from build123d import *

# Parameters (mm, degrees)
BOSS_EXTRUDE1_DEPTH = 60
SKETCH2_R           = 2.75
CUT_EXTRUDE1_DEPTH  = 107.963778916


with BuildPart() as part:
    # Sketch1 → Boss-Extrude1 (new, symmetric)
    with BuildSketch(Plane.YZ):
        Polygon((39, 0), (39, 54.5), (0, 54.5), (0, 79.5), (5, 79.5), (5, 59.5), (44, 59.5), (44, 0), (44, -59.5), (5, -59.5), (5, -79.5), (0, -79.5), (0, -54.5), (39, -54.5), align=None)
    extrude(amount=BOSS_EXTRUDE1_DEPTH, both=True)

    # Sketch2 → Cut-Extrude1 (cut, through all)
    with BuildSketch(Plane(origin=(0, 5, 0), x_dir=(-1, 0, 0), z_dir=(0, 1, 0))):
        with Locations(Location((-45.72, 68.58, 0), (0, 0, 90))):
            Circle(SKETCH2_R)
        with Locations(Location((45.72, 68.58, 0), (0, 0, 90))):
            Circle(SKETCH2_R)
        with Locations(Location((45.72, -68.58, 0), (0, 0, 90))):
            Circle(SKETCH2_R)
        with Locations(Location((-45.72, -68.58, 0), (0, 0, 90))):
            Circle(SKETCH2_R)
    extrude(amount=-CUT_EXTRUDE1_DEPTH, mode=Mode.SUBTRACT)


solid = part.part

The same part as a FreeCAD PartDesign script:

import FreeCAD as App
import Part
import Sketcher
Q = App.Units.Quantity


def add_polygon(sketch, points):
    """Adds a closed chain of lines whose ends are joined by coincident constraints."""
    first, n = sketch.GeometryCount, len(points)
    for a, b in zip(points, points[1:] + points[:1]):
        sketch.addGeometry(Part.LineSegment(App.Vector(*a, 0), App.Vector(*b, 0)), False)
    for i in range(n):
        sketch.addConstraint(Sketcher.Constraint("Coincident", first + i, 2, first + (i + 1) % n, 1))

doc = App.newDocument("Part")
body = doc.addObject("PartDesign::Body", "Body")

# Sketch on YZ plane
sketch1 = body.newObject("Sketcher::SketchObject", "Sketch")
sketch1.AttachmentSupport = (doc.getObject("YZ_Plane"), [""])
sketch1.MapMode = "FlatFace"
add_polygon(sketch1, [(39, 54), (39, -54), (0, -54), (0, -80), (5, -80), (5, -60), (44, -60), (44, 60), (5, 60), (5, 80), (0, 80), (0, 54)])  # lines 0-11
sketch1.addConstraint([
    Sketcher.Constraint("Vertical", 0),
    Sketcher.Constraint("Horizontal", 1),
    Sketcher.Constraint("Vertical", 2),
    Sketcher.Constraint("Horizontal", 3),
    Sketcher.Constraint("Vertical", 4),
    Sketcher.Constraint("Horizontal", 5),
    Sketcher.Constraint("Vertical", 6),
    Sketcher.Constraint("Horizontal", 7),
    Sketcher.Constraint("Vertical", 8),
    Sketcher.Constraint("Horizontal", 9),
    Sketcher.Constraint("Vertical", 10),
    Sketcher.Constraint("Horizontal", 11),
    Sketcher.Constraint("Symmetric", 2, 2, 9, 2, -1, 1),
    Sketcher.Constraint("Symmetric", 4, 2, 7, 2, -1),
    Sketcher.Constraint("Symmetric", 1, 2, 10, 2, -1),
    Sketcher.Constraint("Equal", 1, 5),
    Sketcher.Constraint("DistanceX", 1, 2, 1, 1, Q("39 mm")),
    Sketcher.Constraint("DistanceX", 3, 1, 3, 2, Q("5 mm")),
    Sketcher.Constraint("DistanceY", 0, 2, 0, 1, Q("109 mm")),
    Sketcher.Constraint("DistanceY", 2, 2, 2, 1, Q("25 mm")),
    Sketcher.Constraint("DistanceY", 4, 1, 4, 2, Q("20 mm")),
])
pad1 = body.newObject("PartDesign::Pad", "Pad")
pad1.Profile = sketch1
pad1.Length = 120
pad1.Midplane = True

# Sketch on XZ plane
sketch2 = body.newObject("Sketcher::SketchObject", "Sketch001")
sketch2.AttachmentSupport = (doc.getObject("XZ_Plane"), [""])
sketch2.MapMode = "FlatFace"
sketch2.AttachmentOffset = App.Placement(App.Vector(0, 0, -5), App.Rotation())
sketch2.addGeometry([
    Part.Circle(App.Vector(45.7, 68.6, 0), App.Vector(0, 0, 1), 2.8),
    Part.Circle(App.Vector(-45.7, 68.6, 0), App.Vector(0, 0, 1), 2.8),
    Part.Circle(App.Vector(-45.7, -68.6, 0), App.Vector(0, 0, 1), 2.8),
    Part.Circle(App.Vector(45.7, -68.6, 0), App.Vector(0, 0, 1), 2.8),
], False)
sketch2.addConstraint([
    Sketcher.Constraint("Equal", 0, 1),
    Sketcher.Constraint("Equal", 1, 2),
    Sketcher.Constraint("Equal", 2, 3),
    Sketcher.Constraint("Symmetric", 0, 3, 2, 3, -1, 1),
    Sketcher.Constraint("Symmetric", 1, 3, 3, 3, -1, 1),
    Sketcher.Constraint("Symmetric", 0, 3, 1, 3, -2),
    Sketcher.Constraint("Diameter", 0, Q("5.5 mm")),
    Sketcher.Constraint("DistanceX", -1, 1, 0, 3, Q("45.72 mm")),
    Sketcher.Constraint("DistanceY", -1, 1, 0, 3, Q("68.58 mm")),
])
pocket1 = body.newObject("PartDesign::Pocket", "Pocket")
pocket1.Profile = sketch2
pocket1.Type = "ThroughAll"
pocket1.Reversed = True

doc.recompute()
